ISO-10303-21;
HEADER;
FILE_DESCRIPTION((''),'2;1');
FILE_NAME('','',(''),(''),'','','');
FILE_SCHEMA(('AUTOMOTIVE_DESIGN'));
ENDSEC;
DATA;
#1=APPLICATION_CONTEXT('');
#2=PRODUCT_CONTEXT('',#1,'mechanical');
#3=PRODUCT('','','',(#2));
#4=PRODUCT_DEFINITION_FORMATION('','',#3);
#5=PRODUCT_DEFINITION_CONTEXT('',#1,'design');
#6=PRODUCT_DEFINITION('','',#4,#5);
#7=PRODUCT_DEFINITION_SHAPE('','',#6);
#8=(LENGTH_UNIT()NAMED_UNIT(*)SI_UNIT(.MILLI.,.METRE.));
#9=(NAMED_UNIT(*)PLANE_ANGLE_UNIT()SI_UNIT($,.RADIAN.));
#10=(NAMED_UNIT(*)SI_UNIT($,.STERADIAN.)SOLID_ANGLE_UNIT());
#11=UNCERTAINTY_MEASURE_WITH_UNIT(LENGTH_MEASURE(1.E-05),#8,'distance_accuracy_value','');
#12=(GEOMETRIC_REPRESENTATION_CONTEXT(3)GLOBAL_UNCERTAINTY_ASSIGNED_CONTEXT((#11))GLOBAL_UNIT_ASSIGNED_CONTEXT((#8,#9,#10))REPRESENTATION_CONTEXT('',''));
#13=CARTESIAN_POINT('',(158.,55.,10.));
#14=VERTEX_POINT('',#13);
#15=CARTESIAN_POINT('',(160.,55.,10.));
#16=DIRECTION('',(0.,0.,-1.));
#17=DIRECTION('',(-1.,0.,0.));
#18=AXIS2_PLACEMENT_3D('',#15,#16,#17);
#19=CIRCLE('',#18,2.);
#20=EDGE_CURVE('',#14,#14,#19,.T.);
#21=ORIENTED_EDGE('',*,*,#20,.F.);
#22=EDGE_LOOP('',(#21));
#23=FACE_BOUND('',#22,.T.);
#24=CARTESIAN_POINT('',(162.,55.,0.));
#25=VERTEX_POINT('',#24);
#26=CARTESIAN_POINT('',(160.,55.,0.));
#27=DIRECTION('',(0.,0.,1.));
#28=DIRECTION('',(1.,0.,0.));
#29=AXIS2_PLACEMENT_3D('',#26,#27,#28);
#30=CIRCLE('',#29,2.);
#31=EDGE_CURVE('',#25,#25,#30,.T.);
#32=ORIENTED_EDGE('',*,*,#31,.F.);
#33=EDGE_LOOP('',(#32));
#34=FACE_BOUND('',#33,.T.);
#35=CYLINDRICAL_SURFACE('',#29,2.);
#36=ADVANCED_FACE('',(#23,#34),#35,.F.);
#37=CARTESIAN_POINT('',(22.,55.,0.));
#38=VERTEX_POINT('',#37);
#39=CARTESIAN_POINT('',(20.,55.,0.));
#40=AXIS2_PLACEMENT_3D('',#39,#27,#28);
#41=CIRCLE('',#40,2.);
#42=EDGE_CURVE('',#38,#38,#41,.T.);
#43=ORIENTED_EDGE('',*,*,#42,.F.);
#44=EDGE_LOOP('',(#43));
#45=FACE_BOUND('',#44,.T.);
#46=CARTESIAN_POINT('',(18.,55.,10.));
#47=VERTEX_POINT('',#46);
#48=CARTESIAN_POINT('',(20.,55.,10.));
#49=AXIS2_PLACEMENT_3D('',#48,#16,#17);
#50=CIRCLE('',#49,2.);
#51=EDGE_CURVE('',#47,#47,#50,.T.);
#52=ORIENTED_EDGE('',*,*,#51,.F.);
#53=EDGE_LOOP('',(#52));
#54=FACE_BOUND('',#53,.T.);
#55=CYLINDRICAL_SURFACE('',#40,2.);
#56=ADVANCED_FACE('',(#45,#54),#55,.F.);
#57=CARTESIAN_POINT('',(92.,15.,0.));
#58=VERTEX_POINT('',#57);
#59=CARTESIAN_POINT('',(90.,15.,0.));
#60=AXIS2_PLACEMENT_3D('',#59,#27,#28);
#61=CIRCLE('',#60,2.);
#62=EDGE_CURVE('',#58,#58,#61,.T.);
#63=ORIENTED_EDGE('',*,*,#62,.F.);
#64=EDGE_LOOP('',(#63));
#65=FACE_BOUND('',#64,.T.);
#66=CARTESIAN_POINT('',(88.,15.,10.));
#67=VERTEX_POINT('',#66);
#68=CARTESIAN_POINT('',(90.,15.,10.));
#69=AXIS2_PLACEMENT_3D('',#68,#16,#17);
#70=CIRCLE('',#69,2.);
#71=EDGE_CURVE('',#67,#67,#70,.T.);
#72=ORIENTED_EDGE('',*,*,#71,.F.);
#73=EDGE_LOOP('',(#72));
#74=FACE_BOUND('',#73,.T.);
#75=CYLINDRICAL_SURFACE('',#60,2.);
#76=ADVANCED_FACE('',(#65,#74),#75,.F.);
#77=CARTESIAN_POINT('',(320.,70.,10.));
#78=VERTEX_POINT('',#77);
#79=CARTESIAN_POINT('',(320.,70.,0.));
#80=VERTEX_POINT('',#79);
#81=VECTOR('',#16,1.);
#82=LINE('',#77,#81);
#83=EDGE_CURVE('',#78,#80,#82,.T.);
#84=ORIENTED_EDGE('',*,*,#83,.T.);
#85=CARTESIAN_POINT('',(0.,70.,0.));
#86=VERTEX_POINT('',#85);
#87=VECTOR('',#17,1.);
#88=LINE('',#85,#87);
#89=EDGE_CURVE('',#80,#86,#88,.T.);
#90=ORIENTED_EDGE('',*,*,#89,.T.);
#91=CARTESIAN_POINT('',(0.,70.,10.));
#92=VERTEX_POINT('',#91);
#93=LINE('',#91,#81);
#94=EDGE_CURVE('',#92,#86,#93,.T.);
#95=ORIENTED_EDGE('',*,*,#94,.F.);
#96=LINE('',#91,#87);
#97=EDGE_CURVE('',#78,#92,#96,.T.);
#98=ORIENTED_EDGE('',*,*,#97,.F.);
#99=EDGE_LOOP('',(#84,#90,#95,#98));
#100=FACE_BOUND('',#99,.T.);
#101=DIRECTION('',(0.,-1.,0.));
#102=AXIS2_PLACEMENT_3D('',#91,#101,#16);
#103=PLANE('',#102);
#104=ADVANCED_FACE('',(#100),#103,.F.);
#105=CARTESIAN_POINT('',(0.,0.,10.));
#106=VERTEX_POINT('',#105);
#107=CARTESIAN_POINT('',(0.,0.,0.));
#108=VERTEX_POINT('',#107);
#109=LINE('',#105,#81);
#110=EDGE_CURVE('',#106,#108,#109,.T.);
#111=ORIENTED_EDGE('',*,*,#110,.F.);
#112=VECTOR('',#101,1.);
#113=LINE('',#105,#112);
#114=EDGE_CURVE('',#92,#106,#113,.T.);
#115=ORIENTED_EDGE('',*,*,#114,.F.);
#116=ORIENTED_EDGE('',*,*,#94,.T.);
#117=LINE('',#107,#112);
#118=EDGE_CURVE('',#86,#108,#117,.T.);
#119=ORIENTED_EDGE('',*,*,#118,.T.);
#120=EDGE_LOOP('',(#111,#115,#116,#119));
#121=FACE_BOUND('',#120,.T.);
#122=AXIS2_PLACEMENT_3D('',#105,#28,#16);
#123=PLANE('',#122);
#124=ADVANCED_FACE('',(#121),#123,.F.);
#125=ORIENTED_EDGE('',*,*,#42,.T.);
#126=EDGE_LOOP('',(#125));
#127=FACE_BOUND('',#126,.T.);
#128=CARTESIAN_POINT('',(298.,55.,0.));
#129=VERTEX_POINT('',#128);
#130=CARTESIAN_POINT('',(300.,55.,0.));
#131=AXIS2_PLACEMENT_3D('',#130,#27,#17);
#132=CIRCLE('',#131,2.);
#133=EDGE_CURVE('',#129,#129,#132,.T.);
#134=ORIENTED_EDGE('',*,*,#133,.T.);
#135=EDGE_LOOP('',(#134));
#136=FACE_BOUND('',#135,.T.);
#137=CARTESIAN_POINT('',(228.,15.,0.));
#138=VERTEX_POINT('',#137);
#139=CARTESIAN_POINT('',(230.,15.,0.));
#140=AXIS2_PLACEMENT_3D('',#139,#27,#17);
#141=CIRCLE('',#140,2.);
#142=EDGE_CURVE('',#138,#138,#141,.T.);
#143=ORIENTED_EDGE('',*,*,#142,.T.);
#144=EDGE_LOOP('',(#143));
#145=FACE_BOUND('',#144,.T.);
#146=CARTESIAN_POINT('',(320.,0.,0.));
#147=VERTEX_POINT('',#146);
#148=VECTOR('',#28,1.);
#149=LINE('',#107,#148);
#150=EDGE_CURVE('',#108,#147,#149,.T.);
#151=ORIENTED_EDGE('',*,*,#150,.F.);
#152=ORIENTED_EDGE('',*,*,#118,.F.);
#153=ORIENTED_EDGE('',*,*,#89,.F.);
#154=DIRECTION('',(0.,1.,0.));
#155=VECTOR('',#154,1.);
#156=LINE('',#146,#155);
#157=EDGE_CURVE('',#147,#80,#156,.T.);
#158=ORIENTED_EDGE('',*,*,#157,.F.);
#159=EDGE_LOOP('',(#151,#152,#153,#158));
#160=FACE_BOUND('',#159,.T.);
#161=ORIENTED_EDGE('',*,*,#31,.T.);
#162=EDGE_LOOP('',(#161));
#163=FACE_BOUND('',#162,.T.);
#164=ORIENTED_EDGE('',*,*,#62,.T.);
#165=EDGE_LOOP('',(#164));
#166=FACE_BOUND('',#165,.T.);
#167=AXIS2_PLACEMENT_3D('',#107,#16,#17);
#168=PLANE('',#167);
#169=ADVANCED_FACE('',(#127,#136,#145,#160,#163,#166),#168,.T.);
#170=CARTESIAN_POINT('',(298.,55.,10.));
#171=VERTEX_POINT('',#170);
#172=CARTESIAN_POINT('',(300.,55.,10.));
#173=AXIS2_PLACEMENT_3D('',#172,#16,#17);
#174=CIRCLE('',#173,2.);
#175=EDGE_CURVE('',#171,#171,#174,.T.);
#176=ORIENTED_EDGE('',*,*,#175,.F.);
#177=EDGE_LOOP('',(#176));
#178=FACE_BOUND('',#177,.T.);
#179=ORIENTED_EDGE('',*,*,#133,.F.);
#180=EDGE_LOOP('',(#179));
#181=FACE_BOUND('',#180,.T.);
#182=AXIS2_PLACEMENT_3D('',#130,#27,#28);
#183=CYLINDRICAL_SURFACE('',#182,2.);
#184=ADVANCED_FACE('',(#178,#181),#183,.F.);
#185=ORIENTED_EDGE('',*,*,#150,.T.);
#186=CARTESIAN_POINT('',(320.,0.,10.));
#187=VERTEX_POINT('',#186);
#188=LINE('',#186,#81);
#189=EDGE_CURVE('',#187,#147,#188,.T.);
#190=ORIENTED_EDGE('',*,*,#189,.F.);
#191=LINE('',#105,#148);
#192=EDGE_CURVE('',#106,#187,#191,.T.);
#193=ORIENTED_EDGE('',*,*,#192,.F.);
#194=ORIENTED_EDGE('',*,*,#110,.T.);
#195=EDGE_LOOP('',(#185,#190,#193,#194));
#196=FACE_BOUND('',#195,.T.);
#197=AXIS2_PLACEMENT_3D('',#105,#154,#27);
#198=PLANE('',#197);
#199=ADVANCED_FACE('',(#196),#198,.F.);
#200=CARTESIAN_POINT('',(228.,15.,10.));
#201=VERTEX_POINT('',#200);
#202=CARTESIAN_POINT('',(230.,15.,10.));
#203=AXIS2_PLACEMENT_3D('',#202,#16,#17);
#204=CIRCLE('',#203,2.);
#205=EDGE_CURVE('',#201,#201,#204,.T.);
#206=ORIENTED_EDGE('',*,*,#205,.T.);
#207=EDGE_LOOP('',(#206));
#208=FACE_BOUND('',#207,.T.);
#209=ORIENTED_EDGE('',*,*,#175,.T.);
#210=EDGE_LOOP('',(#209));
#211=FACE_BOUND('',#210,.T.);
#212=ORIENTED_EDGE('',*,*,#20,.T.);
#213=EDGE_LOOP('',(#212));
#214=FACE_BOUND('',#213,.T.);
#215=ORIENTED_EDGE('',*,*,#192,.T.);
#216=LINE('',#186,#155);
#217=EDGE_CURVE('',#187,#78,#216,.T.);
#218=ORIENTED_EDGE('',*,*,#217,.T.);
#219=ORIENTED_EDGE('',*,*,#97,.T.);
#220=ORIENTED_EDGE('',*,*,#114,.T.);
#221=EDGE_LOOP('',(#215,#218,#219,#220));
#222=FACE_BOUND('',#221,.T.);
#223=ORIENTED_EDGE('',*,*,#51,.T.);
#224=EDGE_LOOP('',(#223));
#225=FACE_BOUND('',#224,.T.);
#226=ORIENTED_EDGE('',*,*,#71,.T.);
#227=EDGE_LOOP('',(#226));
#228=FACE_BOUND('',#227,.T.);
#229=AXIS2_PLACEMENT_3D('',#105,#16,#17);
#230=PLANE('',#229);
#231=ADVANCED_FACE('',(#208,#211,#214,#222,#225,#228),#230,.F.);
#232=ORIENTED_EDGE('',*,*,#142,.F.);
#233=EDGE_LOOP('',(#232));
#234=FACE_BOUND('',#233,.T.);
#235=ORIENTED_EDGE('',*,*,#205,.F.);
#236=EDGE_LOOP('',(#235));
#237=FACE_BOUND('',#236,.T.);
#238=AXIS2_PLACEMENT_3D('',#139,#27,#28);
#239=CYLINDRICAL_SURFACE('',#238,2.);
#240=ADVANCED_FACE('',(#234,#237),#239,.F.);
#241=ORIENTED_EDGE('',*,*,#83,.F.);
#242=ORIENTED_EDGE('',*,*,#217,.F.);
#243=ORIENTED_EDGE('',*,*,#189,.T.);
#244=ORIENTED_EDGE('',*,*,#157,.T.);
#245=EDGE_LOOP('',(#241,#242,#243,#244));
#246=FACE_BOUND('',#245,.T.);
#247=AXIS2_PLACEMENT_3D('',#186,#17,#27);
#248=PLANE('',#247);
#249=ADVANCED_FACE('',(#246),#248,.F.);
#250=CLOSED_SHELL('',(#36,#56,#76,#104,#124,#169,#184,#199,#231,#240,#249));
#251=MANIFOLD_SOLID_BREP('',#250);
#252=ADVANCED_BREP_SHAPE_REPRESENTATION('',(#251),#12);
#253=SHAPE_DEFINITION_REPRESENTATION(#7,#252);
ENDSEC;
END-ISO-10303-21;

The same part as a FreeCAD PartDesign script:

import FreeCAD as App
import Part
import Sketcher

V = App.Vector
Q = App.Units.Quantity

doc = App.newDocument("Part")
body = doc.addObject("PartDesign::Body", "Body")

# Sketch on XY plane
sketch1 = doc.addObject("Sketcher::SketchObject", "Sketch")
body.addObject(sketch1)
sketch1.AttachmentSupport = (doc.XY_Plane, [""])
sketch1.MapMode = "FlatFace"
sketch1.addGeometry(Part.LineSegment(V(0, 70, 0), V(0, 0, 0)), False)
sketch1.addGeometry(Part.LineSegment(V(0, 0, 0), V(320, 0, 0)), False)
sketch1.addGeometry(Part.LineSegment(V(320, 0, 0), V(320, 70, 0)), False)
sketch1.addGeometry(Part.LineSegment(V(320, 70, 0), V(0, 70, 0)), False)
sketch1.addConstraint(Sketcher.Constraint("Coincident", 0, 2, 1, 1))
sketch1.addConstraint(Sketcher.Constraint("Coincident", 1, 2, 2, 1))
sketch1.addConstraint(Sketcher.Constraint("Coincident", 2, 2, 3, 1))
sketch1.addConstraint(Sketcher.Constraint("Coincident", 3, 2, 0, 1))
sketch1.addConstraint(Sketcher.Constraint("Vertical", 0))
sketch1.addConstraint(Sketcher.Constraint("Horizontal", 1))
sketch1.addConstraint(Sketcher.Constraint("Vertical", 2))
sketch1.addConstraint(Sketcher.Constraint("Horizontal", 3))
sketch1.addConstraint(Sketcher.Constraint("Coincident", 0, 2, -1, 1))
sketch1.addConstraint(Sketcher.Constraint("DistanceX", 1, 1, 1, 2, Q("320 mm")))
sketch1.addConstraint(Sketcher.Constraint("DistanceY", 0, 2, 0, 1, Q("70 mm")))
pad1 = doc.addObject("PartDesign::Pad", "Pad")
body.addObject(pad1)
pad1.Profile = sketch1
pad1.Length = 10

# Sketch on XY plane
sketch2 = doc.addObject("Sketcher::SketchObject", "Sketch001")
body.addObject(sketch2)
sketch2.AttachmentSupport = (doc.XY_Plane, [""])
sketch2.MapMode = "FlatFace"
sketch2.AttachmentOffset = App.Placement(V(0, 0, 10), App.Rotation())
sketch2.addGeometry(Part.Circle(V(160, 55, 0), V(0, 0, 1), 2), False)
sketch2.addGeometry(Part.Circle(V(90, 15, 0), V(0, 0, 1), 2), False)
sketch2.addGeometry(Part.Circle(V(20, 55, 0), V(0, 0, 1), 2), False)
sketch2.addGeometry(Part.Circle(V(300, 55, 0), V(0, 0, 1), 2), False)
sketch2.addGeometry(Part.Circle(V(230, 15, 0), V(0, 0, 1), 2), False)
sketch2.addConstraint(Sketcher.Constraint("Equal", 0, 1))
sketch2.addConstraint(Sketcher.Constraint("Equal", 1, 2))
sketch2.addConstraint(Sketcher.Constraint("Equal", 2, 3))
sketch2.addConstraint(Sketcher.Constraint("Equal", 3, 4))
sketch2.addConstraint(Sketcher.Constraint("Horizontal", 0, 3, 2, 3))
sketch2.addConstraint(Sketcher.Constraint("Horizontal", 2, 3, 3, 3))
sketch2.addConstraint(Sketcher.Constraint("Horizontal", 1, 3, 4, 3))
sketch2.addConstraint(Sketcher.Constraint("Diameter", 0, Q("4 mm")))
sketch2.addConstraint(Sketcher.Constraint("DistanceX", -1, 1, 0, 3, Q("160 mm")))
sketch2.addConstraint(Sketcher.Constraint("DistanceY", -1, 1, 0, 3, Q("55 mm")))
sketch2.addConstraint(Sketcher.Constraint("DistanceX", -1, 1, 1, 3, Q("90 mm")))
sketch2.addConstraint(Sketcher.Constraint("DistanceY", -1, 1, 1, 3, Q("15 mm")))
sketch2.addConstraint(Sketcher.Constraint("DistanceX", -1, 1, 2, 3, Q("20 mm")))
sketch2.addConstraint(Sketcher.Constraint("DistanceX", -1, 1, 3, 3, Q("300 mm")))
sketch2.addConstraint(Sketcher.Constraint("DistanceX", -1, 1, 4, 3, Q("230 mm")))
pocket1 = doc.addObject("PartDesign::Pocket", "Pocket")
body.addObject(pocket1)
pocket1.Profile = sketch2
pocket1.Type = "ThroughAll"
pocket1.Midplane = True

doc.recompute()
